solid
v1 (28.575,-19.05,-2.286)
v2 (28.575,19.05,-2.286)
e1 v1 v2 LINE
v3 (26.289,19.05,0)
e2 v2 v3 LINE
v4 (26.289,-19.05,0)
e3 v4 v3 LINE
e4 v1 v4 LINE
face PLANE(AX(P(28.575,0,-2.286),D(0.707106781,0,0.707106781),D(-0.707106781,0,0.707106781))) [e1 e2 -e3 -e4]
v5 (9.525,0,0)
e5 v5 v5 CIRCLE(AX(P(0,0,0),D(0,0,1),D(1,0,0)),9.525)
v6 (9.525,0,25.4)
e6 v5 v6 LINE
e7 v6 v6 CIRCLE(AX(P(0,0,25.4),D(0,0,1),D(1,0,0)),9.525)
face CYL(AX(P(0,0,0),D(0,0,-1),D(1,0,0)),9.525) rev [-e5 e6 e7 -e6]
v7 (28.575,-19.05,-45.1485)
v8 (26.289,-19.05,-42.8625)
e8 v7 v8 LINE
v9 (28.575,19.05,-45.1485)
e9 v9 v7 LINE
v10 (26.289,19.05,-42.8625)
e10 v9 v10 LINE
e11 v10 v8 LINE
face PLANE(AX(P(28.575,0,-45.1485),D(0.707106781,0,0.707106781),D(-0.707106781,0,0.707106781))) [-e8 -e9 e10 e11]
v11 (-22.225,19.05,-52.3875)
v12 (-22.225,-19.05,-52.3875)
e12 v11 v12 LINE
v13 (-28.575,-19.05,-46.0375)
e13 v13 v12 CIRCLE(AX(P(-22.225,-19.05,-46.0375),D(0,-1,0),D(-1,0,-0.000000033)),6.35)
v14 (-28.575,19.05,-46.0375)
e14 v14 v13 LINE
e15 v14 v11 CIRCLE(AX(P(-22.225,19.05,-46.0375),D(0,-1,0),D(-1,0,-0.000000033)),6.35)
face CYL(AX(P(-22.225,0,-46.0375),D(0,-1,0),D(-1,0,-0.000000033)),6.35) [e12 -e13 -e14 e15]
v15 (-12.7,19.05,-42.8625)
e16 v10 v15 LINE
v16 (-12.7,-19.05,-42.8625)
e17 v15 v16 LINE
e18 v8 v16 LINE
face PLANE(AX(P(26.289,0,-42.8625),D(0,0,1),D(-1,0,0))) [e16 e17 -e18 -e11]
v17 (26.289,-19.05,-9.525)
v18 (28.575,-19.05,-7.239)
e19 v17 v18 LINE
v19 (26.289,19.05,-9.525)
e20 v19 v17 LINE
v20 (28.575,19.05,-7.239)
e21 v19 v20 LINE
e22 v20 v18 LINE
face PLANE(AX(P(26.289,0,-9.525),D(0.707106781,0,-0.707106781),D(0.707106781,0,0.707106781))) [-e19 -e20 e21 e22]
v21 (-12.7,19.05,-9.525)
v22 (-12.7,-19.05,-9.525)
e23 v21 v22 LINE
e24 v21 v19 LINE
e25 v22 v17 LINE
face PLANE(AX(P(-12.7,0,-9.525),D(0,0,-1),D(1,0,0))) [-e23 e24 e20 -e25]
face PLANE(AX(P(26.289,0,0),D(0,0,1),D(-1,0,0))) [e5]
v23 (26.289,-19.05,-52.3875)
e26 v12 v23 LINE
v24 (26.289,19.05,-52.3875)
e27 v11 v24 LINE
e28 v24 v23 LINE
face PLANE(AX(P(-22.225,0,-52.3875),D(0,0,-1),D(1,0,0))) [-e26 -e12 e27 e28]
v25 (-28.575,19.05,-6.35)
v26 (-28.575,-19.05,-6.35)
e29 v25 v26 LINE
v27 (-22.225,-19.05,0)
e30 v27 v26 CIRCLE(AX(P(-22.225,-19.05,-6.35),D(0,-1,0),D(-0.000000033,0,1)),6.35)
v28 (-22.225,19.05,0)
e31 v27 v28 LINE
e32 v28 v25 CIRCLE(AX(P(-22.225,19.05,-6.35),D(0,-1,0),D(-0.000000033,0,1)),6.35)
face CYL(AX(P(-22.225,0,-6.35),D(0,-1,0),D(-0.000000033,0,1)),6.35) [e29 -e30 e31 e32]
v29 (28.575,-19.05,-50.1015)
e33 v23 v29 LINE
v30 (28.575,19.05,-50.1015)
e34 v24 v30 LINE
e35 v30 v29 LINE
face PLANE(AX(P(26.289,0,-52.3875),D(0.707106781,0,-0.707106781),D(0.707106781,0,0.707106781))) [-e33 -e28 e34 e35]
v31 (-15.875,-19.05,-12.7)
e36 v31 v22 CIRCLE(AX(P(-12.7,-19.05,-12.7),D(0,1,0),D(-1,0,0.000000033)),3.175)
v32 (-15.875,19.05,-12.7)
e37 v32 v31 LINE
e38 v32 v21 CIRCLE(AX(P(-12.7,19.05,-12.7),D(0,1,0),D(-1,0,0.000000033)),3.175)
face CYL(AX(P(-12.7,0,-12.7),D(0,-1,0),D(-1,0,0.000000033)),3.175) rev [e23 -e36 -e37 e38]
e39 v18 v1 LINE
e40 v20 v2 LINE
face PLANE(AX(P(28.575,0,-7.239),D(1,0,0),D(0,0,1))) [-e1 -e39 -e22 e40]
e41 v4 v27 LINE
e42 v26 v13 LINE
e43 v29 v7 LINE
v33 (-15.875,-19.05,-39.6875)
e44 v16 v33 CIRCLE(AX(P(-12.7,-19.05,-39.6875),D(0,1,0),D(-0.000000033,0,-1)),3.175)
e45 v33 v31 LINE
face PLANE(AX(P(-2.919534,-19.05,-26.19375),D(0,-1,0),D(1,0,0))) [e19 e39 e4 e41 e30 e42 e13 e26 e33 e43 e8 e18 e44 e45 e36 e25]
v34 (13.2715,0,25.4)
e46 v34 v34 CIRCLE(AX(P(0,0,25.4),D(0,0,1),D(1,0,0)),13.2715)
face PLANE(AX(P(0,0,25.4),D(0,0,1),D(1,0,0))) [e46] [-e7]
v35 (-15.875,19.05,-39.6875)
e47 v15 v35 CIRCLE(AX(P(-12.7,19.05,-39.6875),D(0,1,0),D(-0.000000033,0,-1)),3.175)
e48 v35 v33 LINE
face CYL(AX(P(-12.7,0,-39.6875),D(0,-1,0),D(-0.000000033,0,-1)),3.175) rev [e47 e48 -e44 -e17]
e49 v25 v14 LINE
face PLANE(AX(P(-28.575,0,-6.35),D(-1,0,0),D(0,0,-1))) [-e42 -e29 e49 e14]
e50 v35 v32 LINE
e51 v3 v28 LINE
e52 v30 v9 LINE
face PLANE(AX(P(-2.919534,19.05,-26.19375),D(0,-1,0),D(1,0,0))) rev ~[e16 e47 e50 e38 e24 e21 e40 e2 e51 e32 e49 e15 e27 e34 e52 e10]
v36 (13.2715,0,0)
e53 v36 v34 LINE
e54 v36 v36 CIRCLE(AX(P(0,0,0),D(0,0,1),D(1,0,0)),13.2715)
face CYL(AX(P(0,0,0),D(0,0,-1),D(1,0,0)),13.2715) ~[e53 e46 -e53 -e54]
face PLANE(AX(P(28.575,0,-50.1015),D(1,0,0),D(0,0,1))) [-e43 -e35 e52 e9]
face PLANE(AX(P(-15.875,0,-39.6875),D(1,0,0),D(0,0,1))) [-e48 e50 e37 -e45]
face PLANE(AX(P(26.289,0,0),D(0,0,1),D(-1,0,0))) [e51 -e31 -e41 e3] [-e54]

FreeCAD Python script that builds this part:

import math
import FreeCAD as App
import Part
import Sketcher
from FreeCAD import Vector
Q = App.Units.Quantity

doc = App.newDocument("Part")
body = doc.addObject("PartDesign::Body", "Body")

# Sketch on XZ plane
sketch1 = body.newObject("Sketcher::SketchObject", "Sketch")
sketch1.AttachmentSupport = (doc.getObject("XZ_Plane"), [""])
sketch1.MapMode = "FlatFace"
sketch1.addGeometry(Part.ArcOfCircle(Part.Circle(Vector(-22.2, -6.4, 0), Vector(0, 0, 1), 6.4), math.radians(90), math.radians(180)), False)
sketch1.addGeometry(Part.LineSegment(Vector(-28.6, -6.3, 0), Vector(-28.6, -46, 0)), False)
sketch1.addGeometry(Part.ArcOfCircle(Part.Circle(Vector(-22.2, -46, 0), Vector(0, 0, 1), 6.4), math.radians(-180), math.radians(-90)), False)
sketch1.addGeometry(Part.LineSegment(Vector(-22.2, -52.4, 0), Vector(26.3, -52.4, 0)), False)
sketch1.addGeometry(Part.LineSegment(Vector(26.3, -52.4, 0), Vector(28.6, -50.1, 0)), False)
sketch1.addGeometry(Part.LineSegment(Vector(28.6, -50.1, 0), Vector(28.6, -45.1, 0)), False)
sketch1.addGeometry(Part.LineSegment(Vector(28.6, -45.1, 0), Vector(26.3, -42.9, 0)), False)
sketch1.addGeometry(Part.LineSegment(Vector(26.3, -42.9, 0), Vector(-12.7, -42.9, 0)), False)
sketch1.addGeometry(Part.ArcOfCircle(Part.Circle(Vector(-12.7, -39.7, 0), Vector(0, 0, 1), 3.2), math.radians(-180), math.radians(-90)), False)
sketch1.addGeometry(Part.LineSegment(Vector(-15.9, -39.7, 0), Vector(-15.9, -12.7, 0)), False)
sketch1.addGeometry(Part.ArcOfCircle(Part.Circle(Vector(-12.7, -12.7, 0), Vector(0, 0, 1), 3.2), math.radians(90), math.radians(180)), False)
sketch1.addGeometry(Part.LineSegment(Vector(-12.7, -9.5, 0), Vector(26.3, -9.5, 0)), False)
sketch1.addGeometry(Part.LineSegment(Vector(26.3, -9.5, 0), Vector(28.6, -7.2, 0)), False)
sketch1.addGeometry(Part.LineSegment(Vector(28.6, -7.2, 0), Vector(28.6, -2.3, 0)), False)
sketch1.addGeometry(Part.LineSegment(Vector(28.6, -2.3, 0), Vector(26.3, 0, 0)), False)
sketch1.addGeometry(Part.LineSegment(Vector(26.3, 0, 0), Vector(-22.2, 0, 0)), False)
sketch1.addConstraint(Sketcher.Constraint("Tangent", 0, 2, 1, 1))
sketch1.addConstraint(Sketcher.Constraint("Tangent", 1, 2, 2, 1))
sketch1.addConstraint(Sketcher.Constraint("Tangent", 2, 2, 3, 1))
sketch1.addConstraint(Sketcher.Constraint("Coincident", 3, 2, 4, 1))
sketch1.addConstraint(Sketcher.Constraint("Coincident", 4, 2, 5, 1))
sketch1.addConstraint(Sketcher.Constraint("Coincident", 5, 2, 6, 1))
sketch1.addConstraint(Sketcher.Constraint("Coincident", 6, 2, 7, 1))
sketch1.addConstraint(Sketcher.Constraint("Tangent", 7, 2, 8, 2))
sketch1.addConstraint(Sketcher.Constraint("Tangent", 8, 1, 9, 1))
sketch1.addConstraint(Sketcher.Constraint("Tangent", 9, 2, 10, 2))
sketch1.addConstraint(Sketcher.Constraint("Tangent", 10, 1, 11, 1))
sketch1.addConstraint(Sketcher.Constraint("Coincident", 11, 2, 12, 1))
sketch1.addConstraint(Sketcher.Constraint("Coincident", 12, 2, 13, 1))
sketch1.addConstraint(Sketcher.Constraint("Coincident", 13, 2, 14, 1))
sketch1.addConstraint(Sketcher.Constraint("Coincident", 14, 2, 15, 1))
sketch1.addConstraint(Sketcher.Constraint("Tangent", 15, 2, 0, 1))
sketch1.addConstraint(Sketcher.Constraint("Vertical", 1))
sketch1.addConstraint(Sketcher.Constraint("Horizontal", 3))
sketch1.addConstraint(Sketcher.Constraint("Vertical", 5))
sketch1.addConstraint(Sketcher.Constraint("Horizontal", 7))
sketch1.addConstraint(Sketcher.Constraint("Vertical", 9))
sketch1.addConstraint(Sketcher.Constraint("Horizontal", 11))
sketch1.addConstraint(Sketcher.Constraint("Vertical", 13))
sketch1.addConstraint(Sketcher.Constraint("Horizontal", 15))
sketch1.addConstraint(Sketcher.Constraint("Equal", 0, 2))
sketch1.addConstraint(Sketcher.Constraint("Equal", 8, 10))
sketch1.addConstraint(Sketcher.Constraint("PointOnObject", 14, 2, -1))
sketch1.addConstraint(Sketcher.Constraint("Perpendicular", 4, 6))
sketch1.addConstraint(Sketcher.Constraint("Perpendicular", 6, 12))
sketch1.addConstraint(Sketcher.Constraint("Perpendicular", 12, 14))
sketch1.addConstraint(Sketcher.Constraint("Vertical", 3, 2, 6, 2))
sketch1.addConstraint(Sketcher.Constraint("Vertical", 6, 2, 11, 2))
sketch1.addConstraint(Sketcher.Constraint("Vertical", 5, 2, 12, 2))
sketch1.addConstraint(Sketcher.Constraint("Vertical", 11, 2, 14, 2))
sketch1.addConstraint(Sketcher.Constraint("Equal", 5, 13))
sketch1.addConstraint(Sketcher.Constraint("Equal", 4, 6))
sketch1.addConstraint(Sketcher.Constraint("Radius", 0, Q("0.25 in")))
sketch1.addConstraint(Sketcher.Constraint("Radius", 8, Q("0.125 in")))
sketch1.addConstraint(Sketcher.Constraint("DistanceX", 2, 2, 4, 2, Q("2 in")))
sketch1.addConstraint(Sketcher.Constraint("DistanceX", 3, 1, 3, 2, Q("1.91 in")))
sketch1.addConstraint(Sketcher.Constraint("DistanceX", 8, 3, -1, 1, Q("0.5 in")))
sketch1.addConstraint(Sketcher.Constraint("DistanceY", 10, 3, -1, 1, Q("0.5 in")))
sketch1.addConstraint(Sketcher.Constraint("DistanceX", 1, 2, 8, 1, Q("0.5 in")))
sketch1.addConstraint(Sketcher.Constraint("DistanceY", 1, 2, 1, 1, Q("1.5625 in")))
pad1 = body.newObject("PartDesign::Pad", "Pad")
pad1.Profile = sketch1
pad1.Length = Q("1.5 in")
pad1.Midplane = True

# Sketch on XY plane
sketch2 = body.newObject("Sketcher::SketchObject", "Sketch001")
sketch2.AttachmentSupport = (doc.getObject("XY_Plane"), [""])
sketch2.MapMode = "FlatFace"
sketch2.addGeometry(Part.Circle(Vector(0, 0, 0), Vector(0, 0, 1), 13), False)
sketch2.addGeometry(Part.Circle(Vector(0, 0, 0), Vector(0, 0, 1), 10), False)
sketch2.addConstraint(Sketcher.Constraint("Coincident", 0, 3, -1, 1))
sketch2.addConstraint(Sketcher.Constraint("Coincident", 1, 3, -1, 1))
sketch2.addConstraint(Sketcher.Constraint("Diameter", 1, Q("0.75 in")))
sketch2.addConstraint(Sketcher.Constraint("Diameter", 0, Q("1.045 in")))
pad2 = body.newObject("PartDesign::Pad", "Pad001")
pad2.Profile = sketch2
pad2.Length = Q("1 in")

doc.recompute()
